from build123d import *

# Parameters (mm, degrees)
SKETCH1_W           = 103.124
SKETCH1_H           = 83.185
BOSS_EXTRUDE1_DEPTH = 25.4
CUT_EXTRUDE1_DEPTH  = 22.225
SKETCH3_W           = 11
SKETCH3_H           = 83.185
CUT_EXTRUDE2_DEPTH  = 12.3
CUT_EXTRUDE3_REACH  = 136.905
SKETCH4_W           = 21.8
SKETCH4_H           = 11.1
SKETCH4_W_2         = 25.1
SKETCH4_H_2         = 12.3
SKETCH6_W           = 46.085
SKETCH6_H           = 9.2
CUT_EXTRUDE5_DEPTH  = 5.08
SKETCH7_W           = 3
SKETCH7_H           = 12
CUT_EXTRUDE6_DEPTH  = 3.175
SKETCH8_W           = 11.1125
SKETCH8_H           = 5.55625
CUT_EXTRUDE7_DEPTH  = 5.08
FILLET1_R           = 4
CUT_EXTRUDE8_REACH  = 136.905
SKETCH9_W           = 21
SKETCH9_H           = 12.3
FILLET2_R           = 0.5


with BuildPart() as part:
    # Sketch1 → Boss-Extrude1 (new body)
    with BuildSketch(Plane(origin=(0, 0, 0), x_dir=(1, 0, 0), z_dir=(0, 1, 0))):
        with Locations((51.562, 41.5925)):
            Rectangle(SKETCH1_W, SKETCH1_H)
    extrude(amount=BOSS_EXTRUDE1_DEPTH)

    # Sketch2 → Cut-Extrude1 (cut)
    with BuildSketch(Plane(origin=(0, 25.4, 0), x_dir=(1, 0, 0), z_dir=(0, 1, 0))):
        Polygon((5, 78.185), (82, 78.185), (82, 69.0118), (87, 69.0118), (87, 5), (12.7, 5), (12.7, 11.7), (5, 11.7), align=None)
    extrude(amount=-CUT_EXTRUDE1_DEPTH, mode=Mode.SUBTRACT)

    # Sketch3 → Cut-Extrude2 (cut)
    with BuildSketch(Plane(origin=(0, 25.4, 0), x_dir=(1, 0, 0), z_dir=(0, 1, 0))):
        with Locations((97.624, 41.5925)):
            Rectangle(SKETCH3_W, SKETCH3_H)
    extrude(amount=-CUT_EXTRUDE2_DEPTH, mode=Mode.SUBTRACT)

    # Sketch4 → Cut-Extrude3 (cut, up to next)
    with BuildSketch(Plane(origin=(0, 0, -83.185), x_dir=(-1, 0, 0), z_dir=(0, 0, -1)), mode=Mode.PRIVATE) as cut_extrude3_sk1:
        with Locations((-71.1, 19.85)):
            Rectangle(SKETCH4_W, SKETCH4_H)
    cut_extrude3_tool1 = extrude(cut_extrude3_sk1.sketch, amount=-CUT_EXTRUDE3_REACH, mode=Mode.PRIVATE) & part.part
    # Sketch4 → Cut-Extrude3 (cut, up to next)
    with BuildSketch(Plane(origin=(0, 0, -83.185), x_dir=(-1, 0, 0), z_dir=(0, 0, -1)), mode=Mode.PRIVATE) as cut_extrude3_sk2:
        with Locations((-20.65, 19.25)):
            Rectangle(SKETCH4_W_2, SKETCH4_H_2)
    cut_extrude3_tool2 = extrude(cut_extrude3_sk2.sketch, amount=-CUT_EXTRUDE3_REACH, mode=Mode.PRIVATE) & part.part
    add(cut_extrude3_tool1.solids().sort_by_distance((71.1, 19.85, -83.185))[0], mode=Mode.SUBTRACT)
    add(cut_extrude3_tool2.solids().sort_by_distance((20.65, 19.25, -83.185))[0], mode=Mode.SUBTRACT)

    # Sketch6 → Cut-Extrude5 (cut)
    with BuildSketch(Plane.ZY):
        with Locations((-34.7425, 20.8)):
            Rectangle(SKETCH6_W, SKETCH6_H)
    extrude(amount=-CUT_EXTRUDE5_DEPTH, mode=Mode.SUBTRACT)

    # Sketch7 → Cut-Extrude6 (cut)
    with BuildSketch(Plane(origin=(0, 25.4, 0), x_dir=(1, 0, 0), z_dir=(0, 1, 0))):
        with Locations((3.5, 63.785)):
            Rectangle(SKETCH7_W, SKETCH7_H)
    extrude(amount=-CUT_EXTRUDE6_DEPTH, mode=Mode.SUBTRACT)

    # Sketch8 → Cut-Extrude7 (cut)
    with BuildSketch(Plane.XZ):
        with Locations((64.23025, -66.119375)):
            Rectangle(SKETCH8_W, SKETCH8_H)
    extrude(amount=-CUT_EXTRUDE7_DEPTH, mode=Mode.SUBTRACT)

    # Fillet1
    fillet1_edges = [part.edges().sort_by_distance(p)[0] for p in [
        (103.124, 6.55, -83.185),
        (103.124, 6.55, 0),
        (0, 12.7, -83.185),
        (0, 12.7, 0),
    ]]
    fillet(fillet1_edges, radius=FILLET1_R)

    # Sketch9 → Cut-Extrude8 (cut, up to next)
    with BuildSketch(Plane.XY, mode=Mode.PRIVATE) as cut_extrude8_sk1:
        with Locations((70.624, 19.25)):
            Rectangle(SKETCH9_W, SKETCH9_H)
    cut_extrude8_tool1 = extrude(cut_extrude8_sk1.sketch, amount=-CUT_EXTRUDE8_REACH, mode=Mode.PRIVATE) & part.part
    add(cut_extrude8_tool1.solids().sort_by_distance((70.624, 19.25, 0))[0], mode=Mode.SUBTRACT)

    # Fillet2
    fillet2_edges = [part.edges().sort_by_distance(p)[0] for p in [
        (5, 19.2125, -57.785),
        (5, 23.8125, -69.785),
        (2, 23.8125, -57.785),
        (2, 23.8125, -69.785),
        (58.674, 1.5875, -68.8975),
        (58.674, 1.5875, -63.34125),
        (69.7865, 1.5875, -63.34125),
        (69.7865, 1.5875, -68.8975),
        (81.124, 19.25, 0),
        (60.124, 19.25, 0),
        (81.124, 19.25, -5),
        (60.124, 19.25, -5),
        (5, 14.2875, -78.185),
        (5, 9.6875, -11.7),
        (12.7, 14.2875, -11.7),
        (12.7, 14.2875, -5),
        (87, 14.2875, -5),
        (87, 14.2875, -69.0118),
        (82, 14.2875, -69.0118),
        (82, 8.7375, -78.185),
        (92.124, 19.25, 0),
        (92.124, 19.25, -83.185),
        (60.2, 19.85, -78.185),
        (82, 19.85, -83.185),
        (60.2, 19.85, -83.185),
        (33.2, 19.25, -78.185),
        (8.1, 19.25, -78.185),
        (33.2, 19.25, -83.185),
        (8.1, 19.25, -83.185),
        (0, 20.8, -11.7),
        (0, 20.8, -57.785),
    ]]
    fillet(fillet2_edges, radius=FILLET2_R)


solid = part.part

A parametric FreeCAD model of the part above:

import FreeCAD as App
import Part
import Sketcher
Q = App.Units.Quantity


def edges_at(feature, points):
    """Names of the edges that pass closest to the given points."""
    edges = feature.Shape.Edges
    near = lambda p: min(range(len(edges)), key=lambda i: edges[i].distToShape(Part.Vertex(*p))[0])
    return sorted({f"Edge{near(p) + 1}" for p in points})

doc = App.newDocument("Part")
body = doc.addObject("PartDesign::Body", "Body")

sketch1 = body.newObject("Sketcher::SketchObject", "Sketch")
sketch1.AttachmentSupport = (doc.getObject("XZ_Plane"), [""])
sketch1.MapMode = "FlatFace"
sketch1.addGeometry(Part.LineSegment(App.Vector(0, -83, 0), App.Vector(0, 0, 0)), False)
sketch1.addGeometry(Part.LineSegment(App.Vector(0, 0, 0), App.Vector(103, 0, 0)), False)
sketch1.addGeometry(Part.LineSegment(App.Vector(103, 0, 0), App.Vector(103, -83, 0)), False)
sketch1.addGeometry(Part.LineSegment(App.Vector(103, -83, 0), App.Vector(0, -83, 0)), False)
sketch1.addConstraint(Sketcher.Constraint("Coincident", 0, 2, 1, 1))
sketch1.addConstraint(Sketcher.Constraint("Coincident", 1, 2, 2, 1))
sketch1.addConstraint(Sketcher.Constraint("Coincident", 2, 2, 3, 1))
sketch1.addConstraint(Sketcher.Constraint("Coincident", 3, 2, 0, 1))
sketch1.addConstraint(Sketcher.Constraint("Vertical", 0))
sketch1.addConstraint(Sketcher.Constraint("Horizontal", 1))
sketch1.addConstraint(Sketcher.Constraint("Vertical", 2))
sketch1.addConstraint(Sketcher.Constraint("Horizontal", 3))
sketch1.addConstraint(Sketcher.Constraint("Coincident", 0, 2, -1, 1))
sketch1.addConstraint(Sketcher.Constraint("DistanceX", 1, 1, 1, 2, Q("103.124 mm")))
sketch1.addConstraint(Sketcher.Constraint("DistanceY", 0, 1, 0, 2, Q("83.185 mm")))
pad1 = body.newObject("PartDesign::Pad", "Pad")
pad1.Profile = sketch1
pad1.Length = 25.4
pad1.Reversed = True

sketch2 = body.newObject("Sketcher::SketchObject", "Sketch001")
sketch2.AttachmentSupport = (doc.getObject("XZ_Plane"), [""])
sketch2.MapMode = "FlatFace"
sketch2.AttachmentOffset = App.Placement(App.Vector(0, 0, -25.4), App.Rotation())
sketch2.addGeometry(Part.LineSegment(App.Vector(82, -78, 0), App.Vector(5, -78, 0)), False)
sketch2.addGeometry(Part.LineSegment(App.Vector(5, -78, 0), App.Vector(5, -12, 0)), False)
sketch2.addGeometry(Part.LineSegment(App.Vector(5, -12, 0), App.Vector(13, -12, 0)), False)
sketch2.addGeometry(Part.LineSegment(App.Vector(13, -12, 0), App.Vector(13, -5, 0)), False)
sketch2.addGeometry(Part.LineSegment(App.Vector(13, -5, 0), App.Vector(87, -5, 0)), False)
sketch2.addGeometry(Part.LineSegment(App.Vector(87, -5, 0), App.Vector(87, -69, 0)), False)
sketch2.addGeometry(Part.LineSegment(App.Vector(87, -69, 0), App.Vector(82, -69, 0)), False)
sketch2.addGeometry(Part.LineSegment(App.Vector(82, -69, 0), App.Vector(82, -78, 0)), False)
sketch2.addConstraint(Sketcher.Constraint("Coincident", 0, 2, 1, 1))
sketch2.addConstraint(Sketcher.Constraint("Coincident", 1, 2, 2, 1))
sketch2.addConstraint(Sketcher.Constraint("Coincident", 2, 2, 3, 1))
sketch2.addConstraint(Sketcher.Constraint("Coincident", 3, 2, 4, 1))
sketch2.addConstraint(Sketcher.Constraint("Coincident", 4, 2, 5, 1))
sketch2.addConstraint(Sketcher.Constraint("Coincident", 5, 2, 6, 1))
sketch2.addConstraint(Sketcher.Constraint("Coincident", 6, 2, 7, 1))
sketch2.addConstraint(Sketcher.Constraint("Coincident", 7, 2, 0, 1))
sketch2.addConstraint(Sketcher.Constraint("Horizontal", 0))
sketch2.addConstraint(Sketcher.Constraint("Vertical", 1))
sketch2.addConstraint(Sketcher.Constraint("Horizontal", 2))
sketch2.addConstraint(Sketcher.Constraint("Vertical", 3))
sketch2.addConstraint(Sketcher.Constraint("Horizontal", 4))
sketch2.addConstraint(Sketcher.Constraint("Vertical", 5))
sketch2.addConstraint(Sketcher.Constraint("Horizontal", 6))
sketch2.addConstraint(Sketcher.Constraint("Vertical", 7))
sketch2.addConstraint(Sketcher.Constraint("DistanceX", 0, 2, 0, 1, Q("77 mm")))
sketch2.addConstraint(Sketcher.Constraint("DistanceX", 6, 2, 6, 1, Q("5 mm")))
sketch2.addConstraint(Sketcher.Constraint("DistanceX", 2, 1, 2, 2, Q("7.7 mm")))
sketch2.addConstraint(Sketcher.Constraint("DistanceY", 3, 1, 3, 2, Q("6.7 mm")))
sketch2.addConstraint(Sketcher.Constraint("DistanceX", -1, 1, 0, 2, Q("5 mm")))
sketch2.addConstraint(Sketcher.Constraint("DistanceY", 3, 2, -1, 1, Q("5 mm")))
sketch2.addConstraint(Sketcher.Constraint("DistanceY", 1, 1, 1, 2, Q("66.485 mm")))
sketch2.addConstraint(Sketcher.Constraint("DistanceY", 5, 2, 5, 1, Q("64.0118 mm")))
pocket1 = body.newObject("PartDesign::Pocket", "Pocket")
pocket1.Profile = sketch2
pocket1.Length = 22.225
pocket1.Reversed = True

sketch3 = body.newObject("Sketcher::SketchObject", "Sketch002")
sketch3.AttachmentSupport = (doc.getObject("XZ_Plane"), [""])
sketch3.MapMode = "FlatFace"
sketch3.AttachmentOffset = App.Placement(App.Vector(0, 0, -25.4), App.Rotation())
sketch3.addGeometry(Part.LineSegment(App.Vector(92, -83, 0), App.Vector(92, 0, 0)), False)
sketch3.addGeometry(Part.LineSegment(App.Vector(92, 0, 0), App.Vector(103, 0, 0)), False)
sketch3.addGeometry(Part.LineSegment(App.Vector(103, 0, 0), App.Vector(103, -83, 0)), False)
sketch3.addGeometry(Part.LineSegment(App.Vector(103, -83, 0), App.Vector(92, -83, 0)), False)
sketch3.addConstraint(Sketcher.Constraint("Coincident", 0, 2, 1, 1))
sketch3.addConstraint(Sketcher.Constraint("Coincident", 1, 2, 2, 1))
sketch3.addConstraint(Sketcher.Constraint("Coincident", 2, 2, 3, 1))
sketch3.addConstraint(Sketcher.Constraint("Coincident", 3, 2, 0, 1))
sketch3.addConstraint(Sketcher.Constraint("Vertical", 0))
sketch3.addConstraint(Sketcher.Constraint("Horizontal", 1))
sketch3.addConstraint(Sketcher.Constraint("Vertical", 2))
sketch3.addConstraint(Sketcher.Constraint("Horizontal", 3))
sketch3.addConstraint(Sketcher.Constraint("PointOnObject", 0, 2, -1))
sketch3.addConstraint(Sketcher.Constraint("DistanceX", 1, 1, 1, 2, Q("11 mm")))
sketch3.addConstraint(Sketcher.Constraint("DistanceY", 0, 1, 0, 2, Q("83.185 mm")))
sketch3.addConstraint(Sketcher.Constraint("DistanceX", -1, 1, 0, 2, Q("92.124 mm")))
pocket2 = body.newObject("PartDesign::Pocket", "Pocket001")
pocket2.Profile = sketch3
pocket2.Length = 12.3
pocket2.Reversed = True

sketch4 = body.newObject("Sketcher::SketchObject", "Sketch003")
sketch4.AttachmentSupport = (doc.getObject("XY_Plane"), [""])
sketch4.MapMode = "FlatFace"
sketch4.AttachmentOffset = App.Placement(App.Vector(0, 0, -83.185), App.Rotation())
sketch4.addGeometry(Part.LineSegment(App.Vector(82, 25, 0), App.Vector(82, 14, 0)), False)
sketch4.addGeometry(Part.LineSegment(App.Vector(82, 14, 0), App.Vector(60, 14, 0)), False)
sketch4.addGeometry(Part.LineSegment(App.Vector(60, 14, 0), App.Vector(60, 25, 0)), False)
sketch4.addGeometry(Part.LineSegment(App.Vector(60, 25, 0), App.Vector(82, 25, 0)), False)
sketch4.addConstraint(Sketcher.Constraint("Coincident", 0, 2, 1, 1))
sketch4.addConstraint(Sketcher.Constraint("Coincident", 1, 2, 2, 1))
sketch4.addConstraint(Sketcher.Constraint("Coincident", 2, 2, 3, 1))
sketch4.addConstraint(Sketcher.Constraint("Coincident", 3, 2, 0, 1))
sketch4.addConstraint(Sketcher.Constraint("Vertical", 0))
sketch4.addConstraint(Sketcher.Constraint("Horizontal", 1))
sketch4.addConstraint(Sketcher.Constraint("Vertical", 2))
sketch4.addConstraint(Sketcher.Constraint("Horizontal", 3))
sketch4.addConstraint(Sketcher.Constraint("DistanceX", 1, 2, 1, 1, Q("21.8 mm")))
sketch4.addConstraint(Sketcher.Constraint("DistanceY", 0, 2, 0, 1, Q("11.1 mm")))
sketch4.addConstraint(Sketcher.Constraint("DistanceX", -1, 1, 0, 2, Q("82 mm")))
sketch4.addConstraint(Sketcher.Constraint("DistanceY", -1, 1, 0, 2, Q("14.3 mm")))
pocket3 = body.newObject("PartDesign::Pocket", "Pocket002")
pocket3.Profile = sketch4
pocket3.Type = "UpToFirst"
pocket3.Reversed = True

sketch5 = body.newObject("Sketcher::SketchObject", "Sketch004")
sketch5.AttachmentSupport = (doc.getObject("XY_Plane"), [""])
sketch5.MapMode = "FlatFace"
sketch5.AttachmentOffset = App.Placement(App.Vector(0, 0, -83.185), App.Rotation())
sketch5.addGeometry(Part.LineSegment(App.Vector(33, 25, 0), App.Vector(33, 13, 0)), False)
sketch5.addGeometry(Part.LineSegment(App.Vector(33, 13, 0), App.Vector(8, 13, 0)), False)
sketch5.addGeometry(Part.LineSegment(App.Vector(8, 13, 0), App.Vector(8, 25, 0)), False)
sketch5.addGeometry(Part.LineSegment(App.Vector(8, 25, 0), App.Vector(33, 25, 0)), False)
sketch5.addConstraint(Sketcher.Constraint("Coincident", 0, 2, 1, 1))
sketch5.addConstraint(Sketcher.Constraint("Coincident", 1, 2, 2, 1))
sketch5.addConstraint(Sketcher.Constraint("Coincident", 2, 2, 3, 1))
sketch5.addConstraint(Sketcher.Constraint("Coincident", 3, 2, 0, 1))
sketch5.addConstraint(Sketcher.Constraint("Vertical", 0))
sketch5.addConstraint(Sketcher.Constraint("Horizontal", 1))
sketch5.addConstraint(Sketcher.Constraint("Vertical", 2))
sketch5.addConstraint(Sketcher.Constraint("Horizontal", 3))
sketch5.addConstraint(Sketcher.Constraint("DistanceX", 1, 2, 1, 1, Q("25.1 mm")))
sketch5.addConstraint(Sketcher.Constraint("DistanceY", 0, 2, 0, 1, Q("12.3 mm")))
sketch5.addConstraint(Sketcher.Constraint("DistanceX", -1, 1, 0, 2, Q("33.2 mm")))
sketch5.addConstraint(Sketcher.Constraint("DistanceY", -1, 1, 0, 2, Q("13.1 mm")))
pocket4 = body.newObject("PartDesign::Pocket", "Pocket003")
pocket4.Profile = sketch5
pocket4.Type = "UpToFirst"
pocket4.Reversed = True

sketch6 = body.newObject("Sketcher::SketchObject", "Sketch005")
sketch6.AttachmentSupport = (doc.getObject("YZ_Plane"), [""])
sketch6.MapMode = "FlatFace"
sketch6.addGeometry(Part.LineSegment(App.Vector(25, -58, 0), App.Vector(16, -58, 0)), False)
sketch6.addGeometry(Part.LineSegment(App.Vector(16, -58, 0), App.Vector(16, -12, 0)), False)
sketch6.addGeometry(Part.LineSegment(App.Vector(16, -12, 0), App.Vector(25, -12, 0)), False)
sketch6.addGeometry(Part.LineSegment(App.Vector(25, -12, 0), App.Vector(25, -58, 0)), False)
sketch6.addConstraint(Sketcher.Constraint("Coincident", 0, 2, 1, 1))
sketch6.addConstraint(Sketcher.Constraint("Coincident", 1, 2, 2, 1))
sketch6.addConstraint(Sketcher.Constraint("Coincident", 2, 2, 3, 1))
sketch6.addConstraint(Sketcher.Constraint("Coincident", 3, 2, 0, 1))
sketch6.addConstraint(Sketcher.Constraint("Horizontal", 0))
sketch6.addConstraint(Sketcher.Constraint("Vertical", 1))
sketch6.addConstraint(Sketcher.Constraint("Horizontal", 2))
sketch6.addConstraint(Sketcher.Constraint("Vertical", 3))
sketch6.addConstraint(Sketcher.Constraint("DistanceX", 0, 2, 0, 1, Q("9.2 mm")))
sketch6.addConstraint(Sketcher.Constraint("DistanceX", -1, 1, 0, 2, Q("16.2 mm")))
sketch6.addConstraint(Sketcher.Constraint("DistanceY", 1, 2, -1, 1, Q("11.7 mm")))
sketch6.addConstraint(Sketcher.Constraint("DistanceY", 1, 1, 1, 2, Q("46.085 mm")))
pocket5 = body.newObject("PartDesign::Pocket", "Pocket004")
pocket5.Profile = sketch6
pocket5.Length = 5.08
pocket5.Reversed = True

sketch7 = body.newObject("Sketcher::SketchObject", "Sketch006")
sketch7.AttachmentSupport = (doc.getObject("XZ_Plane"), [""])
sketch7.MapMode = "FlatFace"
sketch7.AttachmentOffset = App.Placement(App.Vector(0, 0, -25.4), App.Rotation())
sketch7.addGeometry(Part.LineSegment(App.Vector(2, -69.8, 0), App.Vector(2, -57.8, 0)), False)
sketch7.addGeometry(Part.LineSegment(App.Vector(2, -57.8, 0), App.Vector(5, -57.8, 0)), False)
sketch7.addGeometry(Part.LineSegment(App.Vector(5, -57.8, 0), App.Vector(5, -69.8, 0)), False)
sketch7.addGeometry(Part.LineSegment(App.Vector(5, -69.8, 0), App.Vector(2, -69.8, 0)), False)
sketch7.addConstraint(Sketcher.Constraint("Coincident", 0, 2, 1, 1))
sketch7.addConstraint(Sketcher.Constraint("Coincident", 1, 2, 2, 1))
sketch7.addConstraint(Sketcher.Constraint("Coincident", 2, 2, 3, 1))
sketch7.addConstraint(Sketcher.Constraint("Coincident", 3, 2, 0, 1))
sketch7.addConstraint(Sketcher.Constraint("Vertical", 0))
sketch7.addConstraint(Sketcher.Constraint("Horizontal", 1))
sketch7.addConstraint(Sketcher.Constraint("Vertical", 2))
sketch7.addConstraint(Sketcher.Constraint("Horizontal", 3))
sketch7.addConstraint(Sketcher.Constraint("DistanceX", 1, 1, 1, 2, Q("3 mm")))
sketch7.addConstraint(Sketcher.Constraint("DistanceY", 0, 1, 0, 2, Q("12 mm")))
sketch7.addConstraint(Sketcher.Constraint("DistanceX", -1, 1, 0, 2, Q("2 mm")))
sketch7.addConstraint(Sketcher.Constraint("DistanceY", 0, 2, -1, 1, Q("57.785 mm")))
pocket6 = body.newObject("PartDesign::Pocket", "Pocket005")
pocket6.Profile = sketch7
pocket6.Length = 3.175
pocket6.Reversed = True

sketch8 = body.newObject("Sketcher::SketchObject", "Sketch007")
sketch8.AttachmentSupport = (doc.getObject("XZ_Plane"), [""])
sketch8.MapMode = "FlatFace"
sketch8.addGeometry(Part.LineSegment(App.Vector(59, -63, 0), App.Vector(59, -69, 0)), False)
sketch8.addGeometry(Part.LineSegment(App.Vector(59, -69, 0), App.Vector(70, -69, 0)), False)
sketch8.addGeometry(Part.LineSegment(App.Vector(70, -69, 0), App.Vector(70, -63, 0)), False)
sketch8.addGeometry(Part.LineSegment(App.Vector(70, -63, 0), App.Vector(59, -63, 0)), False)
sketch8.addConstraint(Sketcher.Constraint("Coincident", 0, 2, 1, 1))
sketch8.addConstraint(Sketcher.Constraint("Coincident", 1, 2, 2, 1))
sketch8.addConstraint(Sketcher.Constraint("Coincident", 2, 2, 3, 1))
sketch8.addConstraint(Sketcher.Constraint("Coincident", 3, 2, 0, 1))
sketch8.addConstraint(Sketcher.Constraint("Vertical", 0))
sketch8.addConstraint(Sketcher.Constraint("Horizontal", 1))
sketch8.addConstraint(Sketcher.Constraint("Vertical", 2))
sketch8.addConstraint(Sketcher.Constraint("Horizontal", 3))
sketch8.addConstraint(Sketcher.Constraint("DistanceX", 1, 1, 1, 2, Q("11.1125 mm")))
sketch8.addConstraint(Sketcher.Constraint("DistanceX", -1, 1, 0, 2, Q("58.674 mm")))
sketch8.addConstraint(Sketcher.Constraint("DistanceY", 0, 2, 0, 1, Q("5.55625 mm")))
sketch8.addConstraint(Sketcher.Constraint("DistanceY", 0, 2, -1, 1, Q("68.8975 mm")))
pocket7 = body.newObject("PartDesign::Pocket", "Pocket006")
pocket7.Profile = sketch8
pocket7.Length = 5.08
doc.recompute()

fillet = body.newObject("PartDesign::Fillet", "Fillet")
fillet.Base = (pocket7, edges_at(pocket7, [
    (103.124, 6.55, -83.185),
    (103.124, 6.55, 0),
    (0, 12.7, -83.185),
    (0, 12.7, 0),
]))
fillet.Radius = 4

sketch9 = body.newObject("Sketcher::SketchObject", "Sketch008")
sketch9.AttachmentSupport = (doc.getObject("XY_Plane"), [""])
sketch9.MapMode = "FlatFace"
sketch9.addGeometry(Part.LineSegment(App.Vector(60, 25, 0), App.Vector(60, 13, 0)), False)
sketch9.addGeometry(Part.LineSegment(App.Vector(60, 13, 0), App.Vector(81, 13, 0)), False)
sketch9.addGeometry(Part.LineSegment(App.Vector(81, 13, 0), App.Vector(81, 25, 0)), False)
sketch9.addGeometry(Part.LineSegment(App.Vector(81, 25, 0), App.Vector(60, 25, 0)), False)
sketch9.addConstraint(Sketcher.Constraint("Coincident", 0, 2, 1, 1))
sketch9.addConstraint(Sketcher.Constraint("Coincident", 1, 2, 2, 1))
sketch9.addConstraint(Sketcher.Constraint("Coincident", 2, 2, 3, 1))
sketch9.addConstraint(Sketcher.Constraint("Coincident", 3, 2, 0, 1))
sketch9.addConstraint(Sketcher.Constraint("Vertical", 0))
sketch9.addConstraint(Sketcher.Constraint("Horizontal", 1))
sketch9.addConstraint(Sketcher.Constraint("Vertical", 2))
sketch9.addConstraint(Sketcher.Constraint("Horizontal", 3))
sketch9.addConstraint(Sketcher.Constraint("DistanceX", 1, 1, 1, 2, Q("21 mm")))
sketch9.addConstraint(Sketcher.Constraint("DistanceY", 0, 2, 0, 1, Q("12.3 mm")))
sketch9.addConstraint(Sketcher.Constraint("DistanceY", -1, 1, 0, 2, Q("13.1 mm")))
sketch9.addConstraint(Sketcher.Constraint("DistanceX", -1, 1, 0, 2, Q("60.124 mm")))
pocket8 = body.newObject("PartDesign::Pocket", "Pocket007")
pocket8.Profile = sketch9
pocket8.Type = "UpToFirst"
doc.recompute()

fillet2 = body.newObject("PartDesign::Fillet", "Fillet001")
fillet2.Base = (pocket8, edges_at(pocket8, [
    (5, 19.212, -57.785),
    (5, 23.812, -69.785),
    (2, 23.812, -57.785),
    (2, 23.812, -69.785),
    (58.674, 1.587, -68.897),
    (58.674, 1.587, -63.341),
    (69.787, 1.587, -63.341),
    (69.787, 1.587, -68.897),
    (81.124, 19.25, 0),
    (60.124, 19.25, 0),
    (81.124, 19.25, -5),
    (60.124, 19.25, -5),
    (5, 14.287, -78.185),
    (5, 9.688, -11.7),
    (12.7, 14.287, -11.7),
    (12.7, 14.287, -5),
    (87, 14.287, -5),
    (87, 14.287, -69.012),
    (82, 14.287, -69.012),
    (82, 8.738, -78.185),
    (92.124, 19.25, 0),
    (92.124, 19.25, -83.185),
    (60.2, 19.85, -78.185),
    (82, 19.85, -83.185),
    (60.2, 19.85, -83.185),
    (33.2, 19.25, -78.185),
    (8.1, 19.25, -78.185),
    (33.2, 19.25, -83.185),
    (8.1, 19.25, -83.185),
    (0, 20.8, -11.7),
    (0, 20.8, -57.785),
]))
fillet2.Radius = 0.5

doc.recompute()
